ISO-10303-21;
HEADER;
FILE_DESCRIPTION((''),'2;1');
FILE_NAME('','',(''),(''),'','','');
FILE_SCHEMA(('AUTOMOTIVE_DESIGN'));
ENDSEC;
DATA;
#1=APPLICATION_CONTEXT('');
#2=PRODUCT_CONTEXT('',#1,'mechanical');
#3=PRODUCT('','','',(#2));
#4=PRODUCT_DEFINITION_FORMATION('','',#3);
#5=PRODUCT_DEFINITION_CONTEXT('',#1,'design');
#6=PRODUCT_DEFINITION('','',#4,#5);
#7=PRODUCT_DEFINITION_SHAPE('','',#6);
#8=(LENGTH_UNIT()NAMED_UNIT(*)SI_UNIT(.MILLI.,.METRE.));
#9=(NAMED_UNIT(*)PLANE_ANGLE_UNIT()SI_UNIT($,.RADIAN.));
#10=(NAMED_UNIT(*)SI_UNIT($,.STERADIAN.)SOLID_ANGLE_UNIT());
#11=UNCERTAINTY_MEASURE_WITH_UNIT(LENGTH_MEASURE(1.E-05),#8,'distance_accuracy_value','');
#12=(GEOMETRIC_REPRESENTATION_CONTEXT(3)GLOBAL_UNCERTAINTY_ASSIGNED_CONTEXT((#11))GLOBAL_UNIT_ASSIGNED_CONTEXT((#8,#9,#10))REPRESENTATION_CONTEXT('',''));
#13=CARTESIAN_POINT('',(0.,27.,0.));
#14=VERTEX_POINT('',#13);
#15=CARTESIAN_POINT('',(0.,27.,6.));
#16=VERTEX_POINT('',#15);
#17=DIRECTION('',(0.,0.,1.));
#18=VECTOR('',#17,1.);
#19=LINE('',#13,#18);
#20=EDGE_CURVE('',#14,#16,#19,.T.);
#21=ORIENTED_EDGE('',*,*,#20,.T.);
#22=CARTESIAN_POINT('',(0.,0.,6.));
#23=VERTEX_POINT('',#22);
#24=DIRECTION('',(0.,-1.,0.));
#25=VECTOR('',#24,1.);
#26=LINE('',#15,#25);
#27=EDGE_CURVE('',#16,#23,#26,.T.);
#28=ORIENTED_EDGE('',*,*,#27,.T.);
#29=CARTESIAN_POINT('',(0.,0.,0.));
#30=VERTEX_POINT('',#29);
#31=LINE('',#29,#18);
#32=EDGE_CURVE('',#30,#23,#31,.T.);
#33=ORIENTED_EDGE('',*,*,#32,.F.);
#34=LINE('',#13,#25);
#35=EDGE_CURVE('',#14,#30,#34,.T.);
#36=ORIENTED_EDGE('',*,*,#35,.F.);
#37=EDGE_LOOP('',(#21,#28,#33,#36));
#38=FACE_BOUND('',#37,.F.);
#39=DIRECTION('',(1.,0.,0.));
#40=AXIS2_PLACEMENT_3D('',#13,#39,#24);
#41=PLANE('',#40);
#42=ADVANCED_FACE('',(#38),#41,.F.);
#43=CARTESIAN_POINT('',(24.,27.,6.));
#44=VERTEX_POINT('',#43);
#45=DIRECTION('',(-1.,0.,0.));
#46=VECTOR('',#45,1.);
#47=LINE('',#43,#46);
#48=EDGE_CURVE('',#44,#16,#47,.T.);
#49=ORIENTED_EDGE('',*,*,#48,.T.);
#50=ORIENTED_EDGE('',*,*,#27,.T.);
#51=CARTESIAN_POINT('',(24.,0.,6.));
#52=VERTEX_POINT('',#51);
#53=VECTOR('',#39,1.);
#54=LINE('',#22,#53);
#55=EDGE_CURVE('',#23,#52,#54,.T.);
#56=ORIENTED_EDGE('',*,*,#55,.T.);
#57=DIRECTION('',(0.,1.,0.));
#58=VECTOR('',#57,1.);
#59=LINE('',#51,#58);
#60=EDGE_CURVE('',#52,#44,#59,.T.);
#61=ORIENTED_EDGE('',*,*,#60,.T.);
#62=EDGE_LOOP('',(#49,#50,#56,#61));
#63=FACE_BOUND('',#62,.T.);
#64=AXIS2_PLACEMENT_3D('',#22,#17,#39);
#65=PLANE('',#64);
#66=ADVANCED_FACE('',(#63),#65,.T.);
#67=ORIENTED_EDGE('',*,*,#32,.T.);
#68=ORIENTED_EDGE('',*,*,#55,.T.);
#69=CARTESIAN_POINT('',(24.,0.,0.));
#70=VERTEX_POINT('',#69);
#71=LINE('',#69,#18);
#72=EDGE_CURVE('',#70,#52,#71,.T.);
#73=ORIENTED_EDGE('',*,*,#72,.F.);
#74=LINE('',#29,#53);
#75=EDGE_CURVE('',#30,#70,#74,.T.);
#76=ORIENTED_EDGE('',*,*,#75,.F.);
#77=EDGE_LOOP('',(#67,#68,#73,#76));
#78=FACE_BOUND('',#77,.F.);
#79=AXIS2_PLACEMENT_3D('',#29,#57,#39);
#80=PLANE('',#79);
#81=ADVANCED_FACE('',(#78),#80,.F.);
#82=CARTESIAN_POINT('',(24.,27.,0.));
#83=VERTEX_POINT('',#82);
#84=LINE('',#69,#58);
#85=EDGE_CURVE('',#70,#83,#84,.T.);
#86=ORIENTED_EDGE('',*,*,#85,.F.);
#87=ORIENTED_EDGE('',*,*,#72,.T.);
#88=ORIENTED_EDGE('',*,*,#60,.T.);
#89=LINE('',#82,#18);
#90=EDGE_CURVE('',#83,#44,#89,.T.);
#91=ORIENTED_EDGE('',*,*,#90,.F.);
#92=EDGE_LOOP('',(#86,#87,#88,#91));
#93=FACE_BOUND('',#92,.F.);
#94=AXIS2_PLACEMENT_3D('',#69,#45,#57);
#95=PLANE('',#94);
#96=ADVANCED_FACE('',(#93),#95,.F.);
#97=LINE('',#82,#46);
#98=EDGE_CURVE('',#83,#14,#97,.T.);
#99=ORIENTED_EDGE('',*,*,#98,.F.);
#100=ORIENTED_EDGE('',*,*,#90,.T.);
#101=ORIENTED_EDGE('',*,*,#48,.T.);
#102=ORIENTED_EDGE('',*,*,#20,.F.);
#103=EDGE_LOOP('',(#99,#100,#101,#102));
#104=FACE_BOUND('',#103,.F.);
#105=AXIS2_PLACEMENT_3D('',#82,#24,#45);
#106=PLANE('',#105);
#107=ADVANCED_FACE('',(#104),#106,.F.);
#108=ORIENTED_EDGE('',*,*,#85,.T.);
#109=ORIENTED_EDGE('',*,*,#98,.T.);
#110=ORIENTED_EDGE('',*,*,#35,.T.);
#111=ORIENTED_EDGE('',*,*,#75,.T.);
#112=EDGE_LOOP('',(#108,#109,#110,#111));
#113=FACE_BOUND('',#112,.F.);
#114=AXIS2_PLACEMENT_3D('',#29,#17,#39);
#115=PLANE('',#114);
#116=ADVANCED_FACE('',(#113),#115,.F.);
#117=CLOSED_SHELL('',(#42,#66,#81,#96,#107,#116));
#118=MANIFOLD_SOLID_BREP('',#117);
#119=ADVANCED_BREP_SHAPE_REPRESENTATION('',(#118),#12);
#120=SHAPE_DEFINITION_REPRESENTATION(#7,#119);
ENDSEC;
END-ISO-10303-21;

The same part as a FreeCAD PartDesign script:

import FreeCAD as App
import Part
import Sketcher

doc = App.newDocument("Part")
body = doc.addObject("PartDesign::Body", "Body")

sketch1 = doc.addObject("Sketcher::SketchObject", "Sketch")
body.addObject(sketch1)
sketch1.AttachmentSupport = (doc.XY_Plane, [""])
sketch1.MapMode = "FlatFace"
sketch1.addGeometry(Part.LineSegment(App.Vector(0, 27, 0), App.Vector(0, 0, 0)), False)
sketch1.addGeometry(Part.LineSegment(App.Vector(0, 0, 0), App.Vector(24, 0, 0)), False)
sketch1.addGeometry(Part.LineSegment(App.Vector(24, 0, 0), App.Vector(24, 27, 0)), False)
sketch1.addGeometry(Part.LineSegment(App.Vector(24, 27, 0), App.Vector(0, 27, 0)), False)
sketch1.addConstraint(Sketcher.Constraint("Coincident", 0, 2, 1, 1))
sketch1.addConstraint(Sketcher.Constraint("Coincident", 1, 2, 2, 1))
sketch1.addConstraint(Sketcher.Constraint("Coincident", 2, 2, 3, 1))
sketch1.addConstraint(Sketcher.Constraint("Coincident", 3, 2, 0, 1))
sketch1.addConstraint(Sketcher.Constraint("Vertical", 0))
sketch1.addConstraint(Sketcher.Constraint("Horizontal", 1))
sketch1.addConstraint(Sketcher.Constraint("Vertical", 2))
sketch1.addConstraint(Sketcher.Constraint("Horizontal", 3))
sketch1.addConstraint(Sketcher.Constraint("Coincident", 0, 2, -1, 1))
sketch1.addConstraint(Sketcher.Constraint("DistanceX", 1, 1, 1, 2, 24.0))
sketch1.addConstraint(Sketcher.Constraint("DistanceY", 0, 2, 0, 1, 27.0))
pad1 = doc.addObject("PartDesign::Pad", "Pad")
body.addObject(pad1)
pad1.Profile = sketch1
pad1.Length = 6

doc.recompute()
